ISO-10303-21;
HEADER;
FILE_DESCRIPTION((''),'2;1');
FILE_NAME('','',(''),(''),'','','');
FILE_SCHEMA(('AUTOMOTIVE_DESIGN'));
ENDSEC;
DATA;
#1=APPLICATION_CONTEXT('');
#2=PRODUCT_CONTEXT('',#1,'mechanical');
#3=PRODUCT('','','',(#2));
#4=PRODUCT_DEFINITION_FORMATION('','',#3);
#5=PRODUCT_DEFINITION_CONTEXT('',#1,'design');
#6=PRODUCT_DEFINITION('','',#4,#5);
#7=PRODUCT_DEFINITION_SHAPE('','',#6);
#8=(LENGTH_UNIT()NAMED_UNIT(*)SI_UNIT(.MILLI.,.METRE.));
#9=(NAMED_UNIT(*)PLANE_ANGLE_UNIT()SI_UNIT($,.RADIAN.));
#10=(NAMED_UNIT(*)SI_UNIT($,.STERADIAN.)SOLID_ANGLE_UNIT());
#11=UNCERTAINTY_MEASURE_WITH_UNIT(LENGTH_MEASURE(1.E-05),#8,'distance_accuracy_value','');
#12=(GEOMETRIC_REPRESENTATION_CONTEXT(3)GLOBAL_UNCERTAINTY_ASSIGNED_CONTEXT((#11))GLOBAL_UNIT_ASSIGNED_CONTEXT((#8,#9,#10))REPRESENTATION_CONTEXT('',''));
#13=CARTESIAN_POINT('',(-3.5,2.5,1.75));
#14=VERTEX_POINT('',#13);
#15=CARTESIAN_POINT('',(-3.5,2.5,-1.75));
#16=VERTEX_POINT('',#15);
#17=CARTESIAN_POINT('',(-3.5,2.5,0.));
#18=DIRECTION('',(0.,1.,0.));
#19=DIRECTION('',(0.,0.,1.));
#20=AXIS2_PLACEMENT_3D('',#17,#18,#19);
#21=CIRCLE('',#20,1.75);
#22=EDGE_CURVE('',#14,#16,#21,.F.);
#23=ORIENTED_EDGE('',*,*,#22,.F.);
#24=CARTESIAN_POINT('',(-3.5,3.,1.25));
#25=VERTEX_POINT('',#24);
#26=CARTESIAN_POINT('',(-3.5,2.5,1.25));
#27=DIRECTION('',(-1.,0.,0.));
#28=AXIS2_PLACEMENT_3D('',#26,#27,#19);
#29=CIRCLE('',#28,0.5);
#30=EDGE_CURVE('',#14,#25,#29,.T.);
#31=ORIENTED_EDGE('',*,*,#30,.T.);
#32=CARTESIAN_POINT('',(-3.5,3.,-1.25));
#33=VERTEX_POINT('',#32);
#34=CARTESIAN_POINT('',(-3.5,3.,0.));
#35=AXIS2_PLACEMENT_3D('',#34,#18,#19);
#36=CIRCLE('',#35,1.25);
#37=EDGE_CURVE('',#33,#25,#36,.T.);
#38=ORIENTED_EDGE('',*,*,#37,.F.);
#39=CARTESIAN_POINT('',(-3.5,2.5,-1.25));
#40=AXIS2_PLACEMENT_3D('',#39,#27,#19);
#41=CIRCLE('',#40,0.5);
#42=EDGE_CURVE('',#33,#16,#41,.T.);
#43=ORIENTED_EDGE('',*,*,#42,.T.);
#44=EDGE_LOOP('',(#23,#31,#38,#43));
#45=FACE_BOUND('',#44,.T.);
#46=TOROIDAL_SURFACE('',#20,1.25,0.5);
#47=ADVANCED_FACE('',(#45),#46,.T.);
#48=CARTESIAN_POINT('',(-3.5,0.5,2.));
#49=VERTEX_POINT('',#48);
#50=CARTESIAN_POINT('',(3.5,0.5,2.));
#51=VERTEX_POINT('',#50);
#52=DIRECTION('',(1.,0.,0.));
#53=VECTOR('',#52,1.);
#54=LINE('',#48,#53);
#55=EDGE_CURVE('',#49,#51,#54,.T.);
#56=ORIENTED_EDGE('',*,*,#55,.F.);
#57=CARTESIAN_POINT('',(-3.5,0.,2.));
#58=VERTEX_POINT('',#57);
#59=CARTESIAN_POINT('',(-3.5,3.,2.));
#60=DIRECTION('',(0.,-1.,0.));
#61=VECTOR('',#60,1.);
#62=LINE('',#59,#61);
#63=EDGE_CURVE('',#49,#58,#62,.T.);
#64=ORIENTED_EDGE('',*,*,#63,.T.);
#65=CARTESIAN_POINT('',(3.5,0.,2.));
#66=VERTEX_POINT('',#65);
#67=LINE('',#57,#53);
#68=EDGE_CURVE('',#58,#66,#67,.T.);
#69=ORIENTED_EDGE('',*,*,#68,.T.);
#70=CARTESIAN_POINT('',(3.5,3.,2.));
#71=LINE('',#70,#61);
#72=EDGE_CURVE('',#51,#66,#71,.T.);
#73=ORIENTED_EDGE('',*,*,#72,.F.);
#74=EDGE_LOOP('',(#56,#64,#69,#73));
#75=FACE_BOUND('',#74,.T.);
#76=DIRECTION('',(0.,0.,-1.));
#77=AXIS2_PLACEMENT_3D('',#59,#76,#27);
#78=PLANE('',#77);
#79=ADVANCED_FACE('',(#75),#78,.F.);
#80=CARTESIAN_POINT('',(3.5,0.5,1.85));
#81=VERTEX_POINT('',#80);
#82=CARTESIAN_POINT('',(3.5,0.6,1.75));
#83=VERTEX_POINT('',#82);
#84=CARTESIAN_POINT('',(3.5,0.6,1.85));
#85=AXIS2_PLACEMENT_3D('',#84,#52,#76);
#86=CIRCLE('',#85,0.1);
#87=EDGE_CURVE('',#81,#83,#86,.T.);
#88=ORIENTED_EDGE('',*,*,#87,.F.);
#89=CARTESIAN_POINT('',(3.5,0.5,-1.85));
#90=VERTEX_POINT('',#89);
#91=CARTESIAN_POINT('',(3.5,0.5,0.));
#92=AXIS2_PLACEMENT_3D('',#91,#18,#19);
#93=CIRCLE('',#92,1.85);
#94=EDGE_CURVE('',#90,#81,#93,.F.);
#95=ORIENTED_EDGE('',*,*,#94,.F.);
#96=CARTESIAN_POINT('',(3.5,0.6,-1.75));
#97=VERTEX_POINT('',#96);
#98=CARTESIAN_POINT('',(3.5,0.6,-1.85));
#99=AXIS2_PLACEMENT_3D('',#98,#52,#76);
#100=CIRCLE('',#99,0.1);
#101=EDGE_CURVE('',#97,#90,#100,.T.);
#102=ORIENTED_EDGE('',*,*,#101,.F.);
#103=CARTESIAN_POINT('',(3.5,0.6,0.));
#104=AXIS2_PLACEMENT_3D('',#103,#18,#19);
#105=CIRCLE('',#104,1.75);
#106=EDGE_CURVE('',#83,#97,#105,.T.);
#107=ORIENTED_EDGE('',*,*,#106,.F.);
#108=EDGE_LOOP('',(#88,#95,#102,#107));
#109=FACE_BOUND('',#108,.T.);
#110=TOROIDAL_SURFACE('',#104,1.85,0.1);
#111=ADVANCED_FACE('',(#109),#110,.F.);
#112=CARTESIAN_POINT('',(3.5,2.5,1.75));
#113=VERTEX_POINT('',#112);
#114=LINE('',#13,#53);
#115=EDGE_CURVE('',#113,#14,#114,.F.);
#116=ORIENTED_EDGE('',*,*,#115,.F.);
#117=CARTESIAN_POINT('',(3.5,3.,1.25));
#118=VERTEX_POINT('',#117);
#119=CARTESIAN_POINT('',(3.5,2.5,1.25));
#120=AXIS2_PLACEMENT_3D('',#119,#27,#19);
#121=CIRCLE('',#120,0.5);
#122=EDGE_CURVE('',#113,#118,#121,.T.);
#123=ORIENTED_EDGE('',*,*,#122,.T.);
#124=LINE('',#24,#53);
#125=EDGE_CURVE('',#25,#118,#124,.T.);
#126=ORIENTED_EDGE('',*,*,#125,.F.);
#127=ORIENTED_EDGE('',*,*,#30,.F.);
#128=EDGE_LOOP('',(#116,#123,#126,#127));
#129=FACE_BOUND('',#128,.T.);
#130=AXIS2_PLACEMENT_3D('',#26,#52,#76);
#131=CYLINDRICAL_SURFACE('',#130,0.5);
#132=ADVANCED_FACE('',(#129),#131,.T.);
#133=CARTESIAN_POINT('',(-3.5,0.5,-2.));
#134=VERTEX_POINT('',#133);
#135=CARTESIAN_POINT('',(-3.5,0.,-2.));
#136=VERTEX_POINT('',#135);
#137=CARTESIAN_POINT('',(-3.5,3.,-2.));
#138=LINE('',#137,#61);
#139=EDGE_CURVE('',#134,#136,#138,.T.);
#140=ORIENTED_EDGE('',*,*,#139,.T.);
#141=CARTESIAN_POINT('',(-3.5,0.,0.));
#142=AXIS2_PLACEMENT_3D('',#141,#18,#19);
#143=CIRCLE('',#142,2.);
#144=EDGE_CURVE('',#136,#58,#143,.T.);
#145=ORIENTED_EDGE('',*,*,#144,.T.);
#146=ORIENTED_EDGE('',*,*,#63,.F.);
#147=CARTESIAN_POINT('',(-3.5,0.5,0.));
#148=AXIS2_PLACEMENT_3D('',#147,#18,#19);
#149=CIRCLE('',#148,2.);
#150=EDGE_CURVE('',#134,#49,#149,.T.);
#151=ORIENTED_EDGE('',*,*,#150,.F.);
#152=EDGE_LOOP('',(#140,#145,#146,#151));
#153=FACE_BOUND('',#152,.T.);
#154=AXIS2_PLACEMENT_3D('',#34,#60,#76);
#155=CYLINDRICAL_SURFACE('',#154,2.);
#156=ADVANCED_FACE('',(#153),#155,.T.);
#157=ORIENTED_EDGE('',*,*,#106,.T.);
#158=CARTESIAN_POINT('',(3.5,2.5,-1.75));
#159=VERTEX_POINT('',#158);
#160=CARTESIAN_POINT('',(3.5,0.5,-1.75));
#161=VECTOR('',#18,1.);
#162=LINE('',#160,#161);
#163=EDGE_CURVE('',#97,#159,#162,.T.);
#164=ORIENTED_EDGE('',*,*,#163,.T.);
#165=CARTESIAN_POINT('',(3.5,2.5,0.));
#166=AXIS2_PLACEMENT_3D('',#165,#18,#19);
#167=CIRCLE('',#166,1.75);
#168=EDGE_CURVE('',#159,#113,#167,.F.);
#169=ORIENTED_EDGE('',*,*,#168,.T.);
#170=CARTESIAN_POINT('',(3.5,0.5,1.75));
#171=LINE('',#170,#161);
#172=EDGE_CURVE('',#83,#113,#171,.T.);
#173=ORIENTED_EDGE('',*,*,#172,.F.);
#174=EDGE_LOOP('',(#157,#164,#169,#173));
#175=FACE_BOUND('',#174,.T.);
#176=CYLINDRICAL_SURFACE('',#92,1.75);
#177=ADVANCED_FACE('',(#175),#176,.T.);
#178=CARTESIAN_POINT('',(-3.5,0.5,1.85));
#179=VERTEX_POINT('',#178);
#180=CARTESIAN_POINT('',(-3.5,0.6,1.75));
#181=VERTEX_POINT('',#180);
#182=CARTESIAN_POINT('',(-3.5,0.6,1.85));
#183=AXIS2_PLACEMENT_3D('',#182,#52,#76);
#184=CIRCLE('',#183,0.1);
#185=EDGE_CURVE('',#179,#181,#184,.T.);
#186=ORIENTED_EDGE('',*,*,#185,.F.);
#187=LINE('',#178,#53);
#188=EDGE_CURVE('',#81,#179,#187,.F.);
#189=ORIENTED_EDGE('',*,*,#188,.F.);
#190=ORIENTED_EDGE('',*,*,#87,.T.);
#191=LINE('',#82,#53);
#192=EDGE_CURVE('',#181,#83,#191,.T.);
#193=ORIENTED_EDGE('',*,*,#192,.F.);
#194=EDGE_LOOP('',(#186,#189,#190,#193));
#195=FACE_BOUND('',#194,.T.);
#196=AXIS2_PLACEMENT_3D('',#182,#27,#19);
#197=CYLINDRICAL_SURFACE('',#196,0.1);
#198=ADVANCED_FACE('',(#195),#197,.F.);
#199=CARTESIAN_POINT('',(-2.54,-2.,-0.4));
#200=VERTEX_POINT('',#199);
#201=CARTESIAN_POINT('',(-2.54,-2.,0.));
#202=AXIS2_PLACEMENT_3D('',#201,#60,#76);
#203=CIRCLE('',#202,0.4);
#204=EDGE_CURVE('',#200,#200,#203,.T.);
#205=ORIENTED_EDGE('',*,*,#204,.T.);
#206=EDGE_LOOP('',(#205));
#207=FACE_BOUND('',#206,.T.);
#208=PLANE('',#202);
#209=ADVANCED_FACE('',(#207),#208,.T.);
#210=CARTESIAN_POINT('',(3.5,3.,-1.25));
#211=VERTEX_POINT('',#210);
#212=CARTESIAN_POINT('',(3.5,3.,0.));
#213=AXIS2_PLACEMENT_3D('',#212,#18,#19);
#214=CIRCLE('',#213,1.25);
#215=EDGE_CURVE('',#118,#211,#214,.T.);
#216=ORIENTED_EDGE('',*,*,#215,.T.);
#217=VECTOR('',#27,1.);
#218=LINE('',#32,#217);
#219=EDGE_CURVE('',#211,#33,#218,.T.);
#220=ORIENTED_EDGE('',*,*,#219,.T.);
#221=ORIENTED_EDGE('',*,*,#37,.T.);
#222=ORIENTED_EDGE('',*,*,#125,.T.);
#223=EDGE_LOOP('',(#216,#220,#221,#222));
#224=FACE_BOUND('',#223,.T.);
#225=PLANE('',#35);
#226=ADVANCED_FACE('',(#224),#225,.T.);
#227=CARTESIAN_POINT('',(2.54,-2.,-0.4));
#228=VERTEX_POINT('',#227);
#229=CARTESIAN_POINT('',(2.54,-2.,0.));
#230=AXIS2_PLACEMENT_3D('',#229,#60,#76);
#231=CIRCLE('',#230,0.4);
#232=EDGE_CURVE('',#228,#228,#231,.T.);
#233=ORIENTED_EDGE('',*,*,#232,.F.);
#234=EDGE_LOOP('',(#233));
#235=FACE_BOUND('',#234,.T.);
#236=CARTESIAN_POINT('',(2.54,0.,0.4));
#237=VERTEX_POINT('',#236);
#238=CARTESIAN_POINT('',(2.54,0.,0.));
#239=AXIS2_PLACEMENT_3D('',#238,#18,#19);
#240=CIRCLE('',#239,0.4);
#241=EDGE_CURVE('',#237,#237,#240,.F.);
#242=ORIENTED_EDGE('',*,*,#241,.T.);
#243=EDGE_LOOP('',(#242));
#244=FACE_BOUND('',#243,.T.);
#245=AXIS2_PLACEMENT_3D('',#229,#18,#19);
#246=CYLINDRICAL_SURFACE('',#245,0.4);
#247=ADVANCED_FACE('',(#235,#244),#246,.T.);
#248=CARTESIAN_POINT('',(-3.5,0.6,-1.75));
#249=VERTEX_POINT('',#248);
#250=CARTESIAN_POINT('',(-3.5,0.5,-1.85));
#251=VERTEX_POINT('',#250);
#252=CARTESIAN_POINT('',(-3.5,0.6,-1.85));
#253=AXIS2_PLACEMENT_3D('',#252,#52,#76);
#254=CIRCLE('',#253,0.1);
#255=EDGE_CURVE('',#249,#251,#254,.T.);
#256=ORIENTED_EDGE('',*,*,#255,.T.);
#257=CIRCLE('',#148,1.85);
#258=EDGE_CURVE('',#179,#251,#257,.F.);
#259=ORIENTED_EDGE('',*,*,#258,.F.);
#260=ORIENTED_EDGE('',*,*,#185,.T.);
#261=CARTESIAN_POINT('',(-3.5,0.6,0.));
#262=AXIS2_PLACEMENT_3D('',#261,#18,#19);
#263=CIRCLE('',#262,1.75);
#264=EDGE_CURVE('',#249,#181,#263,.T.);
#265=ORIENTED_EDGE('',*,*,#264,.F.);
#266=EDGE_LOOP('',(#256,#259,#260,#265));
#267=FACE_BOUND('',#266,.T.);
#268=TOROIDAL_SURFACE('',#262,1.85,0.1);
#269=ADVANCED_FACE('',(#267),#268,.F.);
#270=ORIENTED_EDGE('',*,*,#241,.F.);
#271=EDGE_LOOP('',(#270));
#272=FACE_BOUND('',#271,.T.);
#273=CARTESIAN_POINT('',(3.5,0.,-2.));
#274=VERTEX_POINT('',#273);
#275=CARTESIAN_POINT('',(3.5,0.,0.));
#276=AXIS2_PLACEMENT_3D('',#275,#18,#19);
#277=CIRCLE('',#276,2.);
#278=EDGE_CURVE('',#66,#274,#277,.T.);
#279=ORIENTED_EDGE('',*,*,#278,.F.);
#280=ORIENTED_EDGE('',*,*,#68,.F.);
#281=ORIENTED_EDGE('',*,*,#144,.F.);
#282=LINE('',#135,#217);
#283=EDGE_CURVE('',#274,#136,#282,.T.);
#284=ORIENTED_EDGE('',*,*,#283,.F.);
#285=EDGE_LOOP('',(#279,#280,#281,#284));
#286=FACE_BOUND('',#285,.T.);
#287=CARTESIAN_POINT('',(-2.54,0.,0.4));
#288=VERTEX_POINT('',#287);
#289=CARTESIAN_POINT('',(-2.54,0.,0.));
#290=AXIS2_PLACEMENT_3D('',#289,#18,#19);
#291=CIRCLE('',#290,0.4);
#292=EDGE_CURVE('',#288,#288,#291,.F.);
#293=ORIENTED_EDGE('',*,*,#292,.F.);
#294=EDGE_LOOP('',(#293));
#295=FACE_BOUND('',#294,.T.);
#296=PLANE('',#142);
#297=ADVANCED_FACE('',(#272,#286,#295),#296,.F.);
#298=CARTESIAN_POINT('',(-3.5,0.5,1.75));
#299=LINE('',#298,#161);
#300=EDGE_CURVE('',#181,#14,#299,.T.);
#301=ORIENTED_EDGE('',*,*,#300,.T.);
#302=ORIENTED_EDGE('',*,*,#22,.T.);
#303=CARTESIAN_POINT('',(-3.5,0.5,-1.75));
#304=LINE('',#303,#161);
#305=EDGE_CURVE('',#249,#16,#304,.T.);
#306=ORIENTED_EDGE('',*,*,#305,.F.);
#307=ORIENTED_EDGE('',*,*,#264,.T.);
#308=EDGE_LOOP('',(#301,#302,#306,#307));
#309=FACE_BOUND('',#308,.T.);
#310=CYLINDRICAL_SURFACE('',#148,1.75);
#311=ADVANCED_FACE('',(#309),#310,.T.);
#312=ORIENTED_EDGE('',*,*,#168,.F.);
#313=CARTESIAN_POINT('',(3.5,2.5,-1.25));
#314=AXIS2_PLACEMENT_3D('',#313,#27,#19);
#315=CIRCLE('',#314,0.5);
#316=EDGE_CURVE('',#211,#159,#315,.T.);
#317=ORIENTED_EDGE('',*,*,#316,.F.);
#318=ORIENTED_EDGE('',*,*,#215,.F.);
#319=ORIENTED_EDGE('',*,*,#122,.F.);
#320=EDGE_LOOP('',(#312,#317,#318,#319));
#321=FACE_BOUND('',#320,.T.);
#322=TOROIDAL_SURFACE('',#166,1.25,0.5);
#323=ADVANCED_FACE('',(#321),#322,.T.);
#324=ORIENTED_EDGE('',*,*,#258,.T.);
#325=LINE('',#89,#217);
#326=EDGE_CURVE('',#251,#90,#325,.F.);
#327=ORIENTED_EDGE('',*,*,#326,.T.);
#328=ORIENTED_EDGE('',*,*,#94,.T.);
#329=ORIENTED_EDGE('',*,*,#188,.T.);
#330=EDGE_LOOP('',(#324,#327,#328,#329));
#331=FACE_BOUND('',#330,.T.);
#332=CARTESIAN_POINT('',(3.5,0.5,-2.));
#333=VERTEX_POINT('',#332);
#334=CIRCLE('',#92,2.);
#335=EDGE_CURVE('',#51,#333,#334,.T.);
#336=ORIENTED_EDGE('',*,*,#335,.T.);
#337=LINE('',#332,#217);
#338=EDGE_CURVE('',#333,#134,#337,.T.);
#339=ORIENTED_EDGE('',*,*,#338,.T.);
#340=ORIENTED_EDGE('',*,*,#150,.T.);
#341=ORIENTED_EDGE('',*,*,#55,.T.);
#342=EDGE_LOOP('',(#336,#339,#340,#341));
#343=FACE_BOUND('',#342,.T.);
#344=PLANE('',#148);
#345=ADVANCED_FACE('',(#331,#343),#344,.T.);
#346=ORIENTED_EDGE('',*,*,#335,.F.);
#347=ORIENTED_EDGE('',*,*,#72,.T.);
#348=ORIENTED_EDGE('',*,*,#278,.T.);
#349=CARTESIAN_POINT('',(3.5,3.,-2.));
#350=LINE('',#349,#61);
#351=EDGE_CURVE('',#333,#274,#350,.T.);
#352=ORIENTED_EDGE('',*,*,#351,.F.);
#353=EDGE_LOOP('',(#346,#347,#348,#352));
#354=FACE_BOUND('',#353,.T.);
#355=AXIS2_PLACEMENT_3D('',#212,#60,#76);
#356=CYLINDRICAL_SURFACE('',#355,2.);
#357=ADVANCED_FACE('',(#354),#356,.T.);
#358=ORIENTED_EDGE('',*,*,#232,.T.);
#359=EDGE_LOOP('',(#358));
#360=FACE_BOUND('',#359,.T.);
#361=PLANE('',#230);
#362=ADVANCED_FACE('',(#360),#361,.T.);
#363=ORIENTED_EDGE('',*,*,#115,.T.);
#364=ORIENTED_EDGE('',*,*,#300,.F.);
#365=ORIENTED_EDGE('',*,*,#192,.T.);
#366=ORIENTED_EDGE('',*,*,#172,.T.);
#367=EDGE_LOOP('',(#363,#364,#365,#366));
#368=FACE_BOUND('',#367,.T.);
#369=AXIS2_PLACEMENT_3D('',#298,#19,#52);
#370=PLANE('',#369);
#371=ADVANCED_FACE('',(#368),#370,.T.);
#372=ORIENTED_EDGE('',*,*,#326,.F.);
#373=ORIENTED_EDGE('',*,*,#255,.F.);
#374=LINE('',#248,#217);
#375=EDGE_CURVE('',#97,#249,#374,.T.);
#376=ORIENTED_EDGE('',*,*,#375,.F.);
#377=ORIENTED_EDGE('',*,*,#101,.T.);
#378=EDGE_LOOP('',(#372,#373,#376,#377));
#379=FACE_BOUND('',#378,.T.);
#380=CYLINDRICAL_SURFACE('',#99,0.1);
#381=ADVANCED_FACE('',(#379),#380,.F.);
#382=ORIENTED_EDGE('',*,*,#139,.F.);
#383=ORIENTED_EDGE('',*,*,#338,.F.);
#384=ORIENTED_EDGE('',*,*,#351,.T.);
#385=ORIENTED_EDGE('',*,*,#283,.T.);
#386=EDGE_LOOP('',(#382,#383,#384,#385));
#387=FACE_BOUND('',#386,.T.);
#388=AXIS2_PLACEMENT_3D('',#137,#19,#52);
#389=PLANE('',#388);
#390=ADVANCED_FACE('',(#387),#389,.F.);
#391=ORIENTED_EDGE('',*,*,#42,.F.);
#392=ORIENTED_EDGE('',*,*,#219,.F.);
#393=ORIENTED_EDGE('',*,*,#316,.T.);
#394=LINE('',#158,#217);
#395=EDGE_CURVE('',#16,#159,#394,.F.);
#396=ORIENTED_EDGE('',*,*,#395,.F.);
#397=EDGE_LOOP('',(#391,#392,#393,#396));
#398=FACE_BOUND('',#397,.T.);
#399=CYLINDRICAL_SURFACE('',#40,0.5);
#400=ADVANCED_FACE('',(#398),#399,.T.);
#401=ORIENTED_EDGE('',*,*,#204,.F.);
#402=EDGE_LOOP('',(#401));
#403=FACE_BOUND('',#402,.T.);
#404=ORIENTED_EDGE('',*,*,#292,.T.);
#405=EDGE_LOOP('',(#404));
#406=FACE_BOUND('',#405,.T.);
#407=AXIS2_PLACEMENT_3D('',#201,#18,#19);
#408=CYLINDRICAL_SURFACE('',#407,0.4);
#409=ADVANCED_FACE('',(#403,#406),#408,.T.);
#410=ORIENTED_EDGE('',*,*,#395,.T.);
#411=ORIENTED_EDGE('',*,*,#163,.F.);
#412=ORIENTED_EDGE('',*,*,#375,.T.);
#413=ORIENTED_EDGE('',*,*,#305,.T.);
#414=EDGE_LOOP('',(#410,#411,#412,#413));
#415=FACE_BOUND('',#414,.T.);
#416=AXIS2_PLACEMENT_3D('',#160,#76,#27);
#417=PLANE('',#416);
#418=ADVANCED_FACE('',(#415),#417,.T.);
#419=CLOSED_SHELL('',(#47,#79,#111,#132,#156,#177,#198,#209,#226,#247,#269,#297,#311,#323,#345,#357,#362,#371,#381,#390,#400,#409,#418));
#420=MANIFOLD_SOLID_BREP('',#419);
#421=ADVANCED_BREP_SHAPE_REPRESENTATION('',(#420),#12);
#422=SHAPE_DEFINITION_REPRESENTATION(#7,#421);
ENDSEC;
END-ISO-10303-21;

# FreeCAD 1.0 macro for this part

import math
import FreeCAD as App
import Part
import Sketcher

V = App.Vector


def edges_at(feature, points):
    """Names of the edges that pass closest to the given points."""
    edges = feature.Shape.Edges
    near = lambda p: min(range(len(edges)), key=lambda i: edges[i].distToShape(Part.Vertex(*p))[0])
    return sorted({f"Edge{near(p) + 1}" for p in points})

doc = App.newDocument("Part")
body = doc.addObject("PartDesign::Body", "Body")

# Sketch on XZ plane
sketch1 = body.newObject("Sketcher::SketchObject", "Sketch")
sketch1.AttachmentSupport = (doc.getObject("XZ_Plane"), [""])
sketch1.MapMode = "FlatFace"
sketch1.addGeometry([
    Part.LineSegment(V(3.5, -2, 0), V(-3.5, -2, 0)),
    Part.ArcOfCircle(Part.Circle(V(-3.5, 0, 0), V(0, 0, 1), 2), math.radians(90), math.radians(270)),
    Part.LineSegment(V(-3.5, 2, 0), V(3.5, 2, 0)),
    Part.ArcOfCircle(Part.Circle(V(3.5, 0, 0), V(0, 0, 1), 2), math.radians(-90), math.radians(90)),
], False)
sketch1.addConstraint([
    Sketcher.Constraint("Tangent", 0, 2, 1, 2),
    Sketcher.Constraint("Tangent", 1, 1, 2, 1),
    Sketcher.Constraint("Tangent", 2, 2, 3, 2),
    Sketcher.Constraint("Tangent", 3, 1, 0, 1),
    Sketcher.Constraint("Horizontal", 0),
    Sketcher.Constraint("Horizontal", 2),
    Sketcher.Constraint("Symmetric", 1, 3, 3, 3, -1, 1),
    Sketcher.Constraint("Radius", 1, 2.0),
    Sketcher.Constraint("DistanceX", 0, 2, 0, 1, 7.0),
])
pad1 = body.newObject("PartDesign::Pad", "Pad")
pad1.Profile = sketch1
pad1.Length = 3
pad1.Reversed = True

# Sketch on XZ plane
sketch2 = body.newObject("Sketcher::SketchObject", "Sketch001")
sketch2.AttachmentSupport = (doc.getObject("XZ_Plane"), [""])
sketch2.MapMode = "FlatFace"
sketch2.AttachmentOffset = App.Placement(V(0, 0, -0.5), App.Rotation())
sketch2.addGeometry([
    Part.LineSegment(V(-3.5, 2, 0), V(3.5, 2, 0)),  # 0
    Part.ArcOfCircle(Part.Circle(V(3.5, 0, 0), V(0, 0, 1), 2), math.radians(-90), math.radians(90)),  # 1
    Part.LineSegment(V(3.5, -2, 0), V(-3.5, -2, 0)),  # 2
    Part.ArcOfCircle(Part.Circle(V(-3.5, 0, 0), V(0, 0, 1), 2), math.radians(90), math.radians(270)),  # 3
    Part.LineSegment(V(3.5, 1.8, 0), V(-3.5, 1.8, 0)),  # 4
    Part.ArcOfCircle(Part.Circle(V(-3.5, 0, 0), V(0, 0, 1), 1.8), math.radians(90), math.radians(270)),  # 5
    Part.LineSegment(V(-3.5, -1.8, 0), V(3.5, -1.8, 0)),  # 6
    Part.ArcOfCircle(Part.Circle(V(3.5, 0, 0), V(0, 0, 1), 1.8), math.radians(-90), math.radians(90)),  # 7
], False)
sketch2.addConstraint([
    Sketcher.Constraint("Tangent", 0, 2, 1, 2),
    Sketcher.Constraint("Tangent", 1, 1, 2, 1),
    Sketcher.Constraint("Tangent", 2, 2, 3, 2),
    Sketcher.Constraint("Tangent", 3, 1, 0, 1),
    Sketcher.Constraint("Tangent", 4, 2, 5, 1),
    Sketcher.Constraint("Tangent", 5, 2, 6, 1),
    Sketcher.Constraint("Tangent", 6, 2, 7, 1),
    Sketcher.Constraint("Tangent", 7, 2, 4, 1),
    Sketcher.Constraint("Horizontal", 0),
    Sketcher.Constraint("Horizontal", 2),
    Sketcher.Constraint("Horizontal", 4),
    Sketcher.Constraint("Horizontal", 6),
    Sketcher.Constraint("Coincident", 5, 3, 3, 3),
    Sketcher.Constraint("Symmetric", 1, 3, 3, 3, -1, 1),
    Sketcher.Constraint("Vertical", 7, 3, 0, 2),
    Sketcher.Constraint("Radius", 1, 2.0),
    Sketcher.Constraint("DistanceX", 0, 1, 0, 2, 7.0),
    Sketcher.Constraint("Radius", 5, 1.75),
])
pocket1 = body.newObject("PartDesign::Pocket", "Pocket")
pocket1.Profile = sketch2
pocket1.Length = 2.5
doc.recompute()

fillet = body.newObject("PartDesign::Fillet", "Fillet")
fillet.Base = (pocket1, edges_at(pocket1, [
    (-5.25, 3, 0),
    (0, 3, -1.75),
    (5.25, 3, 0),
    (0, 3, 1.75),
]))
fillet.Radius = 0.5

# Sketch on XZ plane
sketch3 = body.newObject("Sketcher::SketchObject", "Sketch002")
sketch3.AttachmentSupport = (doc.getObject("XZ_Plane"), [""])
sketch3.MapMode = "FlatFace"
sketch3.addGeometry([
    Part.Circle(V(-2.54, 0, 0), V(0, 0, 1), 0.4),
    Part.Circle(V(2.54, 0, 0), V(0, 0, 1), 0.4),
], False)
sketch3.addConstraint([
    Sketcher.Constraint("Equal", 0, 1),
    Sketcher.Constraint("Symmetric", 0, 3, 1, 3, -1, 1),
    Sketcher.Constraint("PointOnObject", 0, 3, -1),
    Sketcher.Constraint("Diameter", 0, 0.8),
    Sketcher.Constraint("DistanceX", 0, 3, -1, 1, 2.54),
])
pad2 = body.newObject("PartDesign::Pad", "Pad001")
pad2.Profile = sketch3
pad2.Length = 2
doc.recompute()

fillet2 = body.newObject("PartDesign::Fillet", "Fillet001")
fillet2.Base = (pad2, edges_at(pad2, [
    (0, 0.5, -1.75),
    (-5.25, 0.5, 0),
    (0, 0.5, 1.75),
    (5.25, 0.5, 0),
]))
fillet2.Radius = 0.1

doc.recompute()
